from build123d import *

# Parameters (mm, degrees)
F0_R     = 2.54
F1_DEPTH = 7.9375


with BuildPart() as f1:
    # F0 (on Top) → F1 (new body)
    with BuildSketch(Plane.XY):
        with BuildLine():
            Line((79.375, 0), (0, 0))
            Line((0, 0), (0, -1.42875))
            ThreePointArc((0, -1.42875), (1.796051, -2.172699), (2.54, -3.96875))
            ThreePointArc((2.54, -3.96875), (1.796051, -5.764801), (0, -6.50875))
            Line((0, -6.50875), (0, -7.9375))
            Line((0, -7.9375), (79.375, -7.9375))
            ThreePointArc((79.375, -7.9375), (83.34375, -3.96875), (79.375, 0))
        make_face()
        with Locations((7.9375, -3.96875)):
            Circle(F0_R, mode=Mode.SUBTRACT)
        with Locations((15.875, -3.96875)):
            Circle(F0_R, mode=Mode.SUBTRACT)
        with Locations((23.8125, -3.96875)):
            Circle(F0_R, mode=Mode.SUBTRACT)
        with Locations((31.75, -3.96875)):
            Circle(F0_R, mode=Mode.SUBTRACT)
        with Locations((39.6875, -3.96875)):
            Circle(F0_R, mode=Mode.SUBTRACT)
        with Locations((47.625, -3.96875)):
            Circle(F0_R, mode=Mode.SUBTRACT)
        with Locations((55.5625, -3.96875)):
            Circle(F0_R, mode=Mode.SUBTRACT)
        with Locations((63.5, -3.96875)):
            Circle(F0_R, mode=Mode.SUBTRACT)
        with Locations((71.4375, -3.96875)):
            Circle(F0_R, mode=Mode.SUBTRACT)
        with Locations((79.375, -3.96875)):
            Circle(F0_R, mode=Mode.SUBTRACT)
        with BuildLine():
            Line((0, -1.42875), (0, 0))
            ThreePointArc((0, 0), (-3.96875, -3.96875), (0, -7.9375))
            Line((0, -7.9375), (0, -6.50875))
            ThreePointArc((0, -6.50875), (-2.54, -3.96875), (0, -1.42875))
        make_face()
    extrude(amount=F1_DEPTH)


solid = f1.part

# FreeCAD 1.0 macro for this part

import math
import FreeCAD as App
import Part
import Sketcher
from FreeCAD import Vector
Q = App.Units.Quantity

doc = App.newDocument("Part")
body = doc.addObject("PartDesign::Body", "Body")

# Sketch on XY plane
sketch1 = doc.addObject("Sketcher::SketchObject", "Sketch")
body.addObject(sketch1)
sketch1.AttachmentSupport = (doc.XY_Plane, [""])
sketch1.MapMode = "FlatFace"
sketch1.addGeometry([
    Part.LineSegment(Vector(79.4, 0, 0), Vector(0, 0, 0)),  # 0
    Part.ArcOfCircle(Part.Circle(Vector(0, -4, 0), Vector(0, 0, 1), 4), math.radians(90), math.radians(270)),  # 1
    Part.LineSegment(Vector(0, -7.9, 0), Vector(79.4, -7.9, 0)),  # 2
    Part.ArcOfCircle(Part.Circle(Vector(79.4, -4, 0), Vector(0, 0, 1), 4), math.radians(-90), math.radians(90)),  # 3
    Part.ArcOfCircle(Part.Circle(Vector(0, -4, 0), Vector(0, 0, 1), 2.5), math.radians(0), math.radians(90)),  # 4
    Part.ArcOfCircle(Part.Circle(Vector(0, -4, 0), Vector(0, 0, 1), 2.5), math.radians(-90), math.radians(0)),  # 5
    Part.ArcOfCircle(Part.Circle(Vector(0, -4, 0), Vector(0, 0, 1), 2.5), math.radians(90), math.radians(270)),  # 6
    Part.Circle(Vector(7.9, -4, 0), Vector(0, 0, 1), 2.5),  # 7
    Part.Circle(Vector(15.9, -4, 0), Vector(0, 0, 1), 2.5),  # 8
    Part.Circle(Vector(23.8, -4, 0), Vector(0, 0, 1), 2.5),  # 9
    Part.Circle(Vector(31.8, -4, 0), Vector(0, 0, 1), 2.5),  # 10
    Part.Circle(Vector(39.7, -4, 0), Vector(0, 0, 1), 2.5),  # 11
    Part.Circle(Vector(47.6, -4, 0), Vector(0, 0, 1), 2.5),  # 12
    Part.Circle(Vector(55.6, -4, 0), Vector(0, 0, 1), 2.5),  # 13
    Part.Circle(Vector(63.5, -4, 0), Vector(0, 0, 1), 2.5),  # 14
    Part.Circle(Vector(71.4, -4, 0), Vector(0, 0, 1), 2.5),  # 15
    Part.Circle(Vector(79.4, -4, 0), Vector(0, 0, 1), 2.5),  # 16
], False)
sketch1.addConstraint([
    Sketcher.Constraint("Tangent", 0, 2, 1, 1),
    Sketcher.Constraint("Tangent", 1, 2, 2, 1),
    Sketcher.Constraint("Tangent", 2, 2, 3, 1),
    Sketcher.Constraint("Tangent", 3, 2, 0, 1),
    Sketcher.Constraint("Tangent", 4, 1, 5, 2),
    Sketcher.Constraint("Tangent", 5, 1, 6, 2),
    Sketcher.Constraint("Tangent", 6, 1, 4, 2),
    Sketcher.Constraint("Horizontal", 0),
    Sketcher.Constraint("Horizontal", 2),
    Sketcher.Constraint("Coincident", 0, 2, -1, 1),
    Sketcher.Constraint("Coincident", 4, 3, 1, 3),
    Sketcher.Constraint("Coincident", 16, 3, 3, 3),
    Sketcher.Constraint("Equal", 6, 7),
    Sketcher.Constraint("Equal", 7, 8),
    Sketcher.Constraint("Equal", 8, 9),
    Sketcher.Constraint("Equal", 9, 10),
    Sketcher.Constraint("Equal", 10, 11),
    Sketcher.Constraint("Equal", 11, 12),
    Sketcher.Constraint("Equal", 12, 13),
    Sketcher.Constraint("Equal", 13, 14),
    Sketcher.Constraint("Equal", 14, 15),
    Sketcher.Constraint("Equal", 15, 16),
    Sketcher.Constraint("PointOnObject", 5, 1, -2),
    Sketcher.Constraint("PointOnObject", 6, 1, -2),
    Sketcher.Constraint("Horizontal", 6, 3, 7, 3),
    Sketcher.Constraint("Horizontal", 7, 3, 8, 3),
    Sketcher.Constraint("Horizontal", 8, 3, 9, 3),
    Sketcher.Constraint("Horizontal", 9, 3, 10, 3),
    Sketcher.Constraint("Horizontal", 10, 3, 11, 3),
    Sketcher.Constraint("Horizontal", 11, 3, 12, 3),
    Sketcher.Constraint("Horizontal", 12, 3, 13, 3),
    Sketcher.Constraint("Horizontal", 13, 3, 14, 3),
    Sketcher.Constraint("Horizontal", 14, 3, 15, 3),
    Sketcher.Constraint("Horizontal", 16, 3, 4, 1),
    Sketcher.Constraint("Diameter", 7, Q("0.2 in")),
    Sketcher.Constraint("Radius", 1, Q("0.15625 in")),
    Sketcher.Constraint("DistanceX", -1, 1, 14, 3, Q("2.5 in")),
    Sketcher.Constraint("DistanceX", 0, 2, 0, 1, Q("3.125 in")),
    Sketcher.Constraint("DistanceX", -1, 1, 10, 3, Q("1.25 in")),
    Sketcher.Constraint("DistanceX", 7, 3, 11, 3, Q("1.25 in")),
    Sketcher.Constraint("DistanceX", 12, 3, 3, 3, Q("1.25 in")),
    Sketcher.Constraint("DistanceX", 8, 3, 12, 3, Q("1.25 in")),
    Sketcher.Constraint("DistanceX", 9, 3, 13, 3, Q("1.25 in")),
    Sketcher.Constraint("DistanceX", 11, 3, 15, 3, Q("1.25 in")),
    Sketcher.Constraint("DistanceX", -1, 1, 7, 3, Q("0.3125 in")),
    Sketcher.Constraint("DistanceX", -1, 1, 9, 3, Q("0.9375 in")),
])
pad1 = doc.addObject("PartDesign::Pad", "Pad")
body.addObject(pad1)
pad1.Profile = sketch1
pad1.Length = Q("0.3125 in")

doc.recompute()
